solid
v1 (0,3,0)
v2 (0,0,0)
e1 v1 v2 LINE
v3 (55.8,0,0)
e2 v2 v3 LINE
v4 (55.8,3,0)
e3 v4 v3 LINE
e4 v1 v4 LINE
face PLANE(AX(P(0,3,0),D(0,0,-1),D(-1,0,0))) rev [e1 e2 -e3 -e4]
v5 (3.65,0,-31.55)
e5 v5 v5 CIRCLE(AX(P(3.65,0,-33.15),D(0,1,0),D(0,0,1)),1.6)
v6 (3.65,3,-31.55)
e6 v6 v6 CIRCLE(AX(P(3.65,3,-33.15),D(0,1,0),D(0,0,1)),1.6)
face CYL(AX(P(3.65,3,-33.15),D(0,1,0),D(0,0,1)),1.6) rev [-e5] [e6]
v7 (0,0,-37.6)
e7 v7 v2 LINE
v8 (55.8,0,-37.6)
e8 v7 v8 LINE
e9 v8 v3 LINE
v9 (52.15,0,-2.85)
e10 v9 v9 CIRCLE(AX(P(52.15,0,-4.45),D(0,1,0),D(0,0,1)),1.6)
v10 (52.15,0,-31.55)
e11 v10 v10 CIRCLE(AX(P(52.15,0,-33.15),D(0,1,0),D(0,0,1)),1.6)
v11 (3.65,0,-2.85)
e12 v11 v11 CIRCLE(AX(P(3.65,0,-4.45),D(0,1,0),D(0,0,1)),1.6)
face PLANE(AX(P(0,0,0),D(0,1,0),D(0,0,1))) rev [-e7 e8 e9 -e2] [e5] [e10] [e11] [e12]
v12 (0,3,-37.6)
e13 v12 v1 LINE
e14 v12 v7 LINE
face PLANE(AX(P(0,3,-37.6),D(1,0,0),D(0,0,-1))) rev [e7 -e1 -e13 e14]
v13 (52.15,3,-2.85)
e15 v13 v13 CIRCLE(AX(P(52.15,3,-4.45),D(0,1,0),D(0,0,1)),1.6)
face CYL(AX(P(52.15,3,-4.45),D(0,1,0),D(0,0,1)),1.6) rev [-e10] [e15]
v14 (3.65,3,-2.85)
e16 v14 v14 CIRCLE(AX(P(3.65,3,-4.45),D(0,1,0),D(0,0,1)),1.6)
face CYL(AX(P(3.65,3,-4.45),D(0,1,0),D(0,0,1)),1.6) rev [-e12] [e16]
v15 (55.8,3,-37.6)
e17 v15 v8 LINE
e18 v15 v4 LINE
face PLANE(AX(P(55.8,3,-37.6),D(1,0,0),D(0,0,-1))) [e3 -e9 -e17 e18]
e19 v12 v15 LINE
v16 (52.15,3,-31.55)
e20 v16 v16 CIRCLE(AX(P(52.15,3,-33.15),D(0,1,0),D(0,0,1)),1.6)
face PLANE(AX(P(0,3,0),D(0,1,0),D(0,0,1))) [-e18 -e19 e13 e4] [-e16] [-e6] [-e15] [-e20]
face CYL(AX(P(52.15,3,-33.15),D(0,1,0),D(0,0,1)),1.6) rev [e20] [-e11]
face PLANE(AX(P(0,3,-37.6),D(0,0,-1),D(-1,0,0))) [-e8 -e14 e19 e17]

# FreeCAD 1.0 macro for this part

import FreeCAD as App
import Part
import Sketcher

V = App.Vector


def add_polygon(sketch, points):
    """Adds a closed chain of lines whose ends are joined by coincident constraints."""
    first, n = sketch.GeometryCount, len(points)
    for a, b in zip(points, points[1:] + points[:1]):
        sketch.addGeometry(Part.LineSegment(App.Vector(*a, 0), App.Vector(*b, 0)), False)
    for i in range(n):
        sketch.addConstraint(Sketcher.Constraint("Coincident", first + i, 2, first + (i + 1) % n, 1))

doc = App.newDocument("Part")
params = doc.addObject("Spreadsheet::Sheet", "Params")
for row, (alias, value) in enumerate([
    ("sketch1_width", "55.8 mm"),
    ("sketch1_height", "37.6 mm"),
    ("pad1_length", "3 mm"),
    ("sketch2_diameter", "3.2 mm"),
    ("hole_diameter", "3.2 mm"),
    ("hole_depth", "3 mm"),
], start=1):
    params.set(f"A{row}", alias)
    params.set(f"B{row}", "=" + value)
    params.setAlias(f"B{row}", alias)

body = doc.addObject("PartDesign::Body", "Body")

sketch1 = body.newObject("Sketcher::SketchObject", "Sketch")
sketch1.AttachmentSupport = (doc.getObject("XZ_Plane"), [""])
sketch1.MapMode = "FlatFace"
add_polygon(sketch1, [(0, -38), (0, 0), (56, 0), (56, -38)])
sketch1.addConstraint(Sketcher.Constraint("Vertical", 0))
sketch1.addConstraint(Sketcher.Constraint("Horizontal", 1))
sketch1.addConstraint(Sketcher.Constraint("Vertical", 2))
sketch1.addConstraint(Sketcher.Constraint("Horizontal", 3))
sketch1.addConstraint(Sketcher.Constraint("Coincident", 0, 2, -1, 1))
sketch1.addConstraint(Sketcher.Constraint("DistanceX", 1, 1, 1, 2, 55.8))
sketch1.addConstraint(Sketcher.Constraint("DistanceY", 0, 1, 0, 2, 37.6))
sketch1.setExpression("Constraints[9]", "Params.sketch1_width")
sketch1.setExpression("Constraints[10]", "Params.sketch1_height")
pad1 = body.newObject("PartDesign::Pad", "Pad")
pad1.Profile = sketch1
pad1.setExpression("Length", "Params.pad1_length")
pad1.Reversed = True

sketch2 = body.newObject("Sketcher::SketchObject", "Sketch001")
sketch2.AttachmentSupport = (doc.getObject("XZ_Plane"), [""])
sketch2.MapMode = "FlatFace"
sketch2.AttachmentOffset = App.Placement(V(0, 0, -3), App.Rotation())
sketch2.addGeometry(Part.Circle(V(3.6, -33.1, 0), V(0, 0, 1), 1.6), False)
sketch2.addGeometry(Part.Circle(V(52.1, -33.1, 0), V(0, 0, 1), 1.6), False)
sketch2.addGeometry(Part.Circle(V(52.1, -4.5, 0), V(0, 0, 1), 1.6), False)
sketch2.addGeometry(Part.Circle(V(3.6, -4.5, 0), V(0, 0, 1), 1.6), False)
sketch2.addConstraint(Sketcher.Constraint("Equal", 0, 1))
sketch2.addConstraint(Sketcher.Constraint("Equal", 1, 2))
sketch2.addConstraint(Sketcher.Constraint("Equal", 2, 3))
sketch2.addConstraint(Sketcher.Constraint("Horizontal", 0, 3, 1, 3))
sketch2.addConstraint(Sketcher.Constraint("Horizontal", 2, 3, 3, 3))
sketch2.addConstraint(Sketcher.Constraint("Vertical", 1, 3, 2, 3))
sketch2.addConstraint(Sketcher.Constraint("Vertical", 0, 3, 3, 3))
sketch2.addConstraint(Sketcher.Constraint("Diameter", 0, 3.2))
sketch2.addConstraint(Sketcher.Constraint("DistanceX", 0, 3, 1, 3, 48.5))
sketch2.addConstraint(Sketcher.Constraint("DistanceY", 1, 3, 2, 3, 28.7))
sketch2.addConstraint(Sketcher.Constraint("DistanceX", -1, 1, 0, 3, 3.65))
sketch2.addConstraint(Sketcher.Constraint("DistanceY", 0, 3, -1, 1, 33.15))
sketch2.setExpression("Constraints[7]", "Params.sketch2_diameter")
doc.recompute()
hole = body.newObject("PartDesign::Hole", "Hole")
hole.Profile = sketch2
hole.ThreadType = "None"
hole.setExpression("Diameter", "Params.hole_diameter")
hole.DepthType = "Dimension"
hole.setExpression("Depth", "Params.hole_depth")
hole.DrillPoint = "Flat"
hole.Reversed = True

doc.recompute()
